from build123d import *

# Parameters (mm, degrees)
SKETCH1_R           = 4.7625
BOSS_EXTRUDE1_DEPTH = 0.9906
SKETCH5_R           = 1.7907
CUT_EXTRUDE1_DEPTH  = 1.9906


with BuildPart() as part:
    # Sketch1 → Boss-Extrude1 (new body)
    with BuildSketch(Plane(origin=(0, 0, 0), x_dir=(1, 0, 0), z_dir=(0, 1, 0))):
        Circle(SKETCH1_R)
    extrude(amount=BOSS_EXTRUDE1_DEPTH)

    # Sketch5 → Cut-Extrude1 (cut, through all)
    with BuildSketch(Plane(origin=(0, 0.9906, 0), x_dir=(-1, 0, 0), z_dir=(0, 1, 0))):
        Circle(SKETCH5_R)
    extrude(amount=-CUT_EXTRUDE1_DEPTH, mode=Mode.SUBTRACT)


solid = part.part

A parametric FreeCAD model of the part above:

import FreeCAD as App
import Part
import Sketcher
Q = App.Units.Quantity

doc = App.newDocument("Part")
params = doc.addObject("Spreadsheet::Sheet", "Params")
for row, (alias, value) in enumerate([
    ("sketch1_diameter", "0.375 in"),
    ("pad1_length", "0.039 in"),
    ("sketch2_diameter", "0.141 in"),
], start=1):
    params.set(f"A{row}", alias)
    params.set(f"B{row}", "=" + value)
    params.setAlias(f"B{row}", alias)

body = doc.addObject("PartDesign::Body", "Body")

# Sketch on XZ plane
sketch1 = body.newObject("Sketcher::SketchObject", "Sketch")
sketch1.AttachmentSupport = (doc.getObject("XZ_Plane"), [""])
sketch1.MapMode = "FlatFace"
sketch1.addGeometry(Part.Circle(App.Vector(0, 0, 0), App.Vector(0, 0, 1), 4.8), False)
sketch1.addConstraint([
    Sketcher.Constraint("Coincident", 0, 3, -1, 1),
    Sketcher.Constraint("Diameter", 0, Q("0.375 in")),
])
sketch1.setExpression("Constraints[1]", "Params.sketch1_diameter")
pad1 = body.newObject("PartDesign::Pad", "Pad")
pad1.Profile = sketch1
pad1.setExpression("Length", "Params.pad1_length")
pad1.Reversed = True

# Sketch on XZ plane
sketch2 = body.newObject("Sketcher::SketchObject", "Sketch001")
sketch2.AttachmentSupport = (doc.getObject("XZ_Plane"), [""])
sketch2.MapMode = "FlatFace"
sketch2.AttachmentOffset = App.Placement(App.Vector(0, 0, -0.039 * 25.4), App.Rotation())
sketch2.addGeometry(Part.Circle(App.Vector(0, 0, 0), App.Vector(0, 0, 1), 1.8), False)
sketch2.addConstraint([
    Sketcher.Constraint("Coincident", 0, 3, -1, 1),
    Sketcher.Constraint("Diameter", 0, Q("0.141 in")),
])
sketch2.setExpression("Constraints[1]", "Params.sketch2_diameter")
pocket1 = body.newObject("PartDesign::Pocket", "Pocket")
pocket1.Profile = sketch2
pocket1.Type = "ThroughAll"
pocket1.Reversed = True

doc.recompute()
